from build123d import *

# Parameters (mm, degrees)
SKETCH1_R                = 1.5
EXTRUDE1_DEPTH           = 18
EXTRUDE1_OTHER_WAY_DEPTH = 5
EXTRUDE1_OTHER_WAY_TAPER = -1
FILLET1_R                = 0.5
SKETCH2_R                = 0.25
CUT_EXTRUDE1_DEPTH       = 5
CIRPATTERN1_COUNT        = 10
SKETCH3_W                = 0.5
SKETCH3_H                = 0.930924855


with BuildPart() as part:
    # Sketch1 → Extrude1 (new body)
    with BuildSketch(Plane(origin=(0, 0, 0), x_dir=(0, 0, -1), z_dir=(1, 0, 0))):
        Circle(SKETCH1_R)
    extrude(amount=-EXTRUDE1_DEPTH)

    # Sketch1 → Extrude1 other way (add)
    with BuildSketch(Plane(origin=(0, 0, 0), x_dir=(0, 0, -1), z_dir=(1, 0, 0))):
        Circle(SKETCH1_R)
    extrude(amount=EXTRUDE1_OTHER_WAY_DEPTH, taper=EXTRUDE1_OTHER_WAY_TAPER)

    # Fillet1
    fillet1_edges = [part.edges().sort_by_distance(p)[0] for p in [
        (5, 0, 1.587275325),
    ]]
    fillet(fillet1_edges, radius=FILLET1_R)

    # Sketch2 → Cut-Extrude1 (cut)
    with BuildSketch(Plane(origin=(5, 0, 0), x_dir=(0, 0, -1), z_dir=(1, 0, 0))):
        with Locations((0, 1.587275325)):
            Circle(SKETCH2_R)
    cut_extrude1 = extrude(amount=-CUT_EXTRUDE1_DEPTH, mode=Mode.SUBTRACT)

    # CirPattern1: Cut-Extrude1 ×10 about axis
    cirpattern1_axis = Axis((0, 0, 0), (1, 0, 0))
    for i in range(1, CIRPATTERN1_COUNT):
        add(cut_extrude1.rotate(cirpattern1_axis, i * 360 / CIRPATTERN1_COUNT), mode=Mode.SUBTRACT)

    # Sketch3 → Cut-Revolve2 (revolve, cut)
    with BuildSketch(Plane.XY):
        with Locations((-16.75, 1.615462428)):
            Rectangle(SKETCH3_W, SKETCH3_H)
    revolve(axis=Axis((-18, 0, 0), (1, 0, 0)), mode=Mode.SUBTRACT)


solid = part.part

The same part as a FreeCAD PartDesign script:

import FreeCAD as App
import Part
import Sketcher
from FreeCAD import Vector


def edges_at(feature, points):
    """Names of the edges that pass closest to the given points."""
    edges = feature.Shape.Edges
    near = lambda p: min(range(len(edges)), key=lambda i: edges[i].distToShape(Part.Vertex(*p))[0])
    return sorted({f"Edge{near(p) + 1}" for p in points})


def add_polygon(sketch, points):
    """Adds a closed chain of lines whose ends are joined by coincident constraints."""
    first, n = sketch.GeometryCount, len(points)
    for a, b in zip(points, points[1:] + points[:1]):
        sketch.addGeometry(Part.LineSegment(App.Vector(*a, 0), App.Vector(*b, 0)), False)
    for i in range(n):
        sketch.addConstraint(Sketcher.Constraint("Coincident", first + i, 2, first + (i + 1) % n, 1))

doc = App.newDocument("Part")
params = doc.addObject("Spreadsheet::Sheet", "Params")
for row, (alias, value) in enumerate([
    ("sketch1_diameter", "3 mm"),
    ("pad1_length", "18 mm"),
    ("sketch2_diameter", "3 mm"),
    ("pad2_length", "5 mm"),
    ("pad2_taper", "1 deg"),
    ("fillet_radius", "0.5 mm"),
    ("sketch3_diameter", "0.5 mm"),
    ("pocket1_length", "5 mm"),
    ("sketch4_width", "0.5 mm"),
    ("groove_angle", "360 deg"),
], start=1):
    params.set(f"A{row}", alias)
    params.set(f"B{row}", "=" + value)
    params.setAlias(f"B{row}", alias)

body = doc.addObject("PartDesign::Body", "Body")

# Sketch on YZ plane
sketch1 = body.newObject("Sketcher::SketchObject", "Sketch")
sketch1.AttachmentSupport = (doc.getObject("YZ_Plane"), [""])
sketch1.MapMode = "FlatFace"
sketch1.addGeometry(Part.Circle(Vector(0, 0, 0), Vector(0, 0, 1), 1.5), False)
sketch1.addConstraint([
    Sketcher.Constraint("Coincident", 0, 3, -1, 1),
    Sketcher.Constraint("Diameter", 0, 3.0),
])
sketch1.setExpression("Constraints[1]", "Params.sketch1_diameter")
pad1 = body.newObject("PartDesign::Pad", "Pad")
pad1.Profile = sketch1
pad1.setExpression("Length", "Params.pad1_length")
pad1.Reversed = True

# Sketch on YZ plane
sketch2 = body.newObject("Sketcher::SketchObject", "Sketch001")
sketch2.AttachmentSupport = (doc.getObject("YZ_Plane"), [""])
sketch2.MapMode = "FlatFace"
sketch2.addGeometry(Part.Circle(Vector(0, 0, 0), Vector(0, 0, 1), 1.5), False)
sketch2.addConstraint([
    Sketcher.Constraint("Coincident", 0, 3, -1, 1),
    Sketcher.Constraint("Diameter", 0, 3.0),
])
sketch2.setExpression("Constraints[1]", "Params.sketch2_diameter")
pad2 = body.newObject("PartDesign::Pad", "Pad001")
pad2.Profile = sketch2
pad2.setExpression("Length", "Params.pad2_length")
pad2.setExpression("TaperAngle", "Params.pad2_taper")
doc.recompute()

fillet = body.newObject("PartDesign::Fillet", "Fillet")
fillet.Base = (pad2, edges_at(pad2, [(5, 0, 1.587)]))
fillet.setExpression("Radius", "Params.fillet_radius")

# Sketch on YZ plane
sketch3 = body.newObject("Sketcher::SketchObject", "Sketch002")
sketch3.AttachmentSupport = (doc.getObject("YZ_Plane"), [""])
sketch3.MapMode = "FlatFace"
sketch3.AttachmentOffset = App.Placement(Vector(0, 0, 5), App.Rotation())
sketch3.addGeometry(Part.Circle(Vector(1.59, 0, 0), Vector(0, 0, 1), 0.25), False)
sketch3.addConstraint([
    Sketcher.Constraint("PointOnObject", 0, 3, -1),
    Sketcher.Constraint("Diameter", 0, 0.5),
    Sketcher.Constraint("DistanceX", -1, 1, 0, 3, 1.587275),
])
sketch3.setExpression("Constraints[1]", "Params.sketch3_diameter")
pocket1 = body.newObject("PartDesign::Pocket", "Pocket")
pocket1.Profile = sketch3
pocket1.setExpression("Length", "Params.pocket1_length")
doc.recompute()

polarpattern = body.newObject("PartDesign::PolarPattern", "PolarPattern")
polarpattern.Originals = [pocket1]
polarpattern.Axis = (doc.getObject("X_Axis"), [""])
polarpattern.Angle = 360
polarpattern.Occurrences = 10
body.Tip = polarpattern

# Sketch on XY plane
sketch4 = body.newObject("Sketcher::SketchObject", "Sketch003")
sketch4.AttachmentSupport = (doc.getObject("XY_Plane"), [""])
sketch4.MapMode = "FlatFace"
add_polygon(sketch4, [(-17, 2.1), (-17, 1.1), (-16.5, 1.1), (-16.5, 2.1)])  # lines 0-3
sketch4.addConstraint([
    Sketcher.Constraint("Vertical", 0),
    Sketcher.Constraint("Horizontal", 1),
    Sketcher.Constraint("Vertical", 2),
    Sketcher.Constraint("Horizontal", 3),
    Sketcher.Constraint("DistanceX", 1, 1, 1, 2, 0.5),
    Sketcher.Constraint("DistanceX", 0, 2, -1, 1, 17.0),
    Sketcher.Constraint("DistanceY", -1, 1, 0, 2, 1.15),
    Sketcher.Constraint("DistanceY", 0, 2, 0, 1, 0.930925),
])
sketch4.setExpression("Constraints[8]", "Params.sketch4_width")
groove = body.newObject("PartDesign::Groove", "Groove")
groove.Profile = sketch4
groove.ReferenceAxis = (sketch4, ["H_Axis"])
groove.setExpression("Angle", "Params.groove_angle")

doc.recompute()
